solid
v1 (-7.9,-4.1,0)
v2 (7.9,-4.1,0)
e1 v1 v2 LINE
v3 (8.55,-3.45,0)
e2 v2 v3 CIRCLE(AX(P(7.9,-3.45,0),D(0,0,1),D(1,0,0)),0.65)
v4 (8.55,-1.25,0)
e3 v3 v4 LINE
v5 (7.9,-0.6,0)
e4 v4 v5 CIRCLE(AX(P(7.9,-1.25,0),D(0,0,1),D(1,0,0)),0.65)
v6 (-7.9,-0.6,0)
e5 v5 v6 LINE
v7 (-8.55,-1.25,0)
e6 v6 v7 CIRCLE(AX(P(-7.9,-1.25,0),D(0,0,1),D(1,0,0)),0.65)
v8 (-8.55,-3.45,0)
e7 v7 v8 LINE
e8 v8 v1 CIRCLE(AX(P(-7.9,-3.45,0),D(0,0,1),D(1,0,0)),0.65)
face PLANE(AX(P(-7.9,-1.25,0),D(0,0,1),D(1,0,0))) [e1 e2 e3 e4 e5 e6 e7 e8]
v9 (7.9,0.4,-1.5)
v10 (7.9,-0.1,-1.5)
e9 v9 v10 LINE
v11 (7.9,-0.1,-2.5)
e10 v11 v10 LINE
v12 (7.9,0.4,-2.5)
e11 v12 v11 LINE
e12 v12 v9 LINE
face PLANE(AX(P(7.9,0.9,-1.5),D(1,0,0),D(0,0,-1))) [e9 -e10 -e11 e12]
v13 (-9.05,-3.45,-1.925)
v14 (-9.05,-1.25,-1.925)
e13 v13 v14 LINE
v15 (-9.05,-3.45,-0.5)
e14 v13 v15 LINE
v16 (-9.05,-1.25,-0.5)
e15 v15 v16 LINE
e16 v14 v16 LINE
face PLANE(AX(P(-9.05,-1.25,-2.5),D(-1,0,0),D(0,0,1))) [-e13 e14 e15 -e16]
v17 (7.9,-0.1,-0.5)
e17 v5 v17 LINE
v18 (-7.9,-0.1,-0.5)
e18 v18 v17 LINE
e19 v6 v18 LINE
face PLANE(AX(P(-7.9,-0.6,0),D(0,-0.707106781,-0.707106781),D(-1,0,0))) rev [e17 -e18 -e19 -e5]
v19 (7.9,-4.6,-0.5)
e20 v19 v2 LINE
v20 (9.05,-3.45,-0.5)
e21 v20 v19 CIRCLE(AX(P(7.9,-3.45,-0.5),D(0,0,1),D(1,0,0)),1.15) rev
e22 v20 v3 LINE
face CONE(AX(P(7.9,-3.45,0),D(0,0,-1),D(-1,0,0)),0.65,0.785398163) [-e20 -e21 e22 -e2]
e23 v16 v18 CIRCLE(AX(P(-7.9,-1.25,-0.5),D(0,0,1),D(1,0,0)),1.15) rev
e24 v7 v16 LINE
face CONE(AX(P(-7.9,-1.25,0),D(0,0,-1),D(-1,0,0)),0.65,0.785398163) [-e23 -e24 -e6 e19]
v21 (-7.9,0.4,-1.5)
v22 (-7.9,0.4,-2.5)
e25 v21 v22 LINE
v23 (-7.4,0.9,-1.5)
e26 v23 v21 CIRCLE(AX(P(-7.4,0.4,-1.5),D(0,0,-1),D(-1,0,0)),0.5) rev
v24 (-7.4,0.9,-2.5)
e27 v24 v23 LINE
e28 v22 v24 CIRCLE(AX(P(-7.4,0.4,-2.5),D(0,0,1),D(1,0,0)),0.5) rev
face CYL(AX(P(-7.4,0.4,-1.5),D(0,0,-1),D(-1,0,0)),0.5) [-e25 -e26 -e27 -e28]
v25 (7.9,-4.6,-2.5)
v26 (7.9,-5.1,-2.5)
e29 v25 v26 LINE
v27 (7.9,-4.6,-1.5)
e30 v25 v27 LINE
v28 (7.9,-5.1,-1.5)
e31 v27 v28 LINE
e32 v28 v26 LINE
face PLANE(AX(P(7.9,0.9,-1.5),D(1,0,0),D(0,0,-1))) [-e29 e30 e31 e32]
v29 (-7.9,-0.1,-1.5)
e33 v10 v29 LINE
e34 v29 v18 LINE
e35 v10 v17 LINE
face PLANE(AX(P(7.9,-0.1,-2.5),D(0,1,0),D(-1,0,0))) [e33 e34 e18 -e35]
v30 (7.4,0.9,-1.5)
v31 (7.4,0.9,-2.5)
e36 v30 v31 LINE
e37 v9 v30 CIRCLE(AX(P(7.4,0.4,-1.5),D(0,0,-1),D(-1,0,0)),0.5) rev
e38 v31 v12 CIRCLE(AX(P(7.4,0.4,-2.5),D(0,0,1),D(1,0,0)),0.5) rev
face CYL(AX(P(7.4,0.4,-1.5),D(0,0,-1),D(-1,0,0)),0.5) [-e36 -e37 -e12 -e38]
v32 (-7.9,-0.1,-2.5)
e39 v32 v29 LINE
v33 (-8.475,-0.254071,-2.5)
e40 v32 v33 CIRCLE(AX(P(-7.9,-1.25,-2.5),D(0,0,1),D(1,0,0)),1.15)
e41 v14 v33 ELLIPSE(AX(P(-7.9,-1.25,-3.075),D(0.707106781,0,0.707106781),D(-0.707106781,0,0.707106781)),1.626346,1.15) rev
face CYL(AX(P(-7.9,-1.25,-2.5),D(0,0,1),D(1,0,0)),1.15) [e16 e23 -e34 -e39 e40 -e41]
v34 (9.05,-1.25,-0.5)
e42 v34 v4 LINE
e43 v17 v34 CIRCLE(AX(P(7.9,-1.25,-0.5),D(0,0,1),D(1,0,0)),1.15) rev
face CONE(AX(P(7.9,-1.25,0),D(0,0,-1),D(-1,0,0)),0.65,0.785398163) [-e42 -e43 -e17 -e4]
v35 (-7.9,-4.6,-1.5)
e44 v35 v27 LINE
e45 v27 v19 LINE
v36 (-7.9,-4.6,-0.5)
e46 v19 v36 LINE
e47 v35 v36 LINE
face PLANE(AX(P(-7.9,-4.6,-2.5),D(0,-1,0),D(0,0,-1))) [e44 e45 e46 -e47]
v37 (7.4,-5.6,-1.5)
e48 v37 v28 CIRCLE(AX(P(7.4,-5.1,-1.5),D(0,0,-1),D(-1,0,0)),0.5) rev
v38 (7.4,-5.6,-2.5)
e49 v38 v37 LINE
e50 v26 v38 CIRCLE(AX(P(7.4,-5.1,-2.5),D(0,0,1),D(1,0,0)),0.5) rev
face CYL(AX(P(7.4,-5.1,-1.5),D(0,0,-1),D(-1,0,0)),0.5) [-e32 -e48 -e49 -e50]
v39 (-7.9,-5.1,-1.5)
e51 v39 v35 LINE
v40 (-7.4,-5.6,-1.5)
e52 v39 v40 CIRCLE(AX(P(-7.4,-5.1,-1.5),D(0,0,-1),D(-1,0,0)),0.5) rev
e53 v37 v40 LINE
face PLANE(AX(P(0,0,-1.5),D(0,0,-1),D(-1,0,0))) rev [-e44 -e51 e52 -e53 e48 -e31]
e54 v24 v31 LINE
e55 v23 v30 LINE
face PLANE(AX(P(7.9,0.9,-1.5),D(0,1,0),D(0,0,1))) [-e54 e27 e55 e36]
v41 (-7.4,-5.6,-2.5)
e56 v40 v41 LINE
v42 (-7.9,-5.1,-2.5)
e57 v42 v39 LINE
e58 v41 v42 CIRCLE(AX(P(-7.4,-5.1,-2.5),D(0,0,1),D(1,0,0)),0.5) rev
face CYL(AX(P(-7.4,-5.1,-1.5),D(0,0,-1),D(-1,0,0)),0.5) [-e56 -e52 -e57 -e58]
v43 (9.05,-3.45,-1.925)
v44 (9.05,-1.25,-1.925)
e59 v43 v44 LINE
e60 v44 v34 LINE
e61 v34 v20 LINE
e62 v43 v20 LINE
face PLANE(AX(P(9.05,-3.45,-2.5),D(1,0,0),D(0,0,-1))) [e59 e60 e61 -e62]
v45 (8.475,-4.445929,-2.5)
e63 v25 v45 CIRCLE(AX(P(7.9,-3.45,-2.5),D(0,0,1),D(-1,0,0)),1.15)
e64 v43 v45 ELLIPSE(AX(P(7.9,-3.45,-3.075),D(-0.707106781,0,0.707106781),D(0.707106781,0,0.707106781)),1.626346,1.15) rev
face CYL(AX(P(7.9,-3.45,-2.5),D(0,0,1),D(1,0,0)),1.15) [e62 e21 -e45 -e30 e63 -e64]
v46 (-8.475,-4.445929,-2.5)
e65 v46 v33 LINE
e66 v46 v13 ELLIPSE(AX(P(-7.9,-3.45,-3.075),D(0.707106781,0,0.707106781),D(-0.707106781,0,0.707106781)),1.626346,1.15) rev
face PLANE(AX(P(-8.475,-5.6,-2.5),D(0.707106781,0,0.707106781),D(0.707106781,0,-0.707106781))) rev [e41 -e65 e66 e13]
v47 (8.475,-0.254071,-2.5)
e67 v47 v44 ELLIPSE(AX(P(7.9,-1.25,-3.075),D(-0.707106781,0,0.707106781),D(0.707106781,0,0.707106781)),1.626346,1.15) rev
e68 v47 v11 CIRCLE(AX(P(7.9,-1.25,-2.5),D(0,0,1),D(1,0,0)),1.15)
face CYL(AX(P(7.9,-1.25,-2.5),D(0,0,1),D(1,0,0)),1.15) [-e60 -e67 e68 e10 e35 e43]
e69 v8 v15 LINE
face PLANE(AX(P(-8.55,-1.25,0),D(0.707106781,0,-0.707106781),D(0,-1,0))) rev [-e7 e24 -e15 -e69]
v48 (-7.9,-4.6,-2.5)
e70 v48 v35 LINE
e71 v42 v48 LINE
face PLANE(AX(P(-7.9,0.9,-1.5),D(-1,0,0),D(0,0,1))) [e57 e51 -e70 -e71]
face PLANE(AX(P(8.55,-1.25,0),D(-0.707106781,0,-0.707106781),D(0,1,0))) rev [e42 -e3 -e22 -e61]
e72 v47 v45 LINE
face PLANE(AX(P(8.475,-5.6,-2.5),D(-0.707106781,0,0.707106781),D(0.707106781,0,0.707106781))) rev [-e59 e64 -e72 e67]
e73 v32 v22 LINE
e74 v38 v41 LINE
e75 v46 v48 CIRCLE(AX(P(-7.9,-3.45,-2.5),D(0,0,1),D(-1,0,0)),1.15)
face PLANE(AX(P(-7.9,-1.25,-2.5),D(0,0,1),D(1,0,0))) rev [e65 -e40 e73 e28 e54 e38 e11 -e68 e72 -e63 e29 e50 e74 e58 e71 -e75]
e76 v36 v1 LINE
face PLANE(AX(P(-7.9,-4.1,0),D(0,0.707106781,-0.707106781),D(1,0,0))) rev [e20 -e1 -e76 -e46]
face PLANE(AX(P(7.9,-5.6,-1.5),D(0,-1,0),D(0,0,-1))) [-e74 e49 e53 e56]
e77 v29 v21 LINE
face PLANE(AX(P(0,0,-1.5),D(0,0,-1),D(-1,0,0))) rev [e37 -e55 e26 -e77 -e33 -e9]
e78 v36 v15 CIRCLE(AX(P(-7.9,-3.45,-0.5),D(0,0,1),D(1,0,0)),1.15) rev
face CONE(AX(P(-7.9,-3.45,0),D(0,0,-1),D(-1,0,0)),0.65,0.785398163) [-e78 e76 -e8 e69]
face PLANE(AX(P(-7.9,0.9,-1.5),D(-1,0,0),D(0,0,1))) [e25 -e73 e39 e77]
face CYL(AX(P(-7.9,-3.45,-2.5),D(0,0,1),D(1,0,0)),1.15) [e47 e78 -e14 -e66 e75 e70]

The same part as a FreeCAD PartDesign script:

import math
import FreeCAD as App
import Part
import Sketcher

V = App.Vector
Q = App.Units.Quantity


def edges_at(feature, points):
    """Names of the edges that pass closest to the given points."""
    edges = feature.Shape.Edges
    near = lambda p: min(range(len(edges)), key=lambda i: edges[i].distToShape(Part.Vertex(*p))[0])
    return sorted({f"Edge{near(p) + 1}" for p in points})


def add_polygon(sketch, points):
    """Adds a closed chain of lines whose ends are joined by coincident constraints."""
    first, n = sketch.GeometryCount, len(points)
    for a, b in zip(points, points[1:] + points[:1]):
        sketch.addGeometry(Part.LineSegment(App.Vector(*a, 0), App.Vector(*b, 0)), False)
    for i in range(n):
        sketch.addConstraint(Sketcher.Constraint("Coincident", first + i, 2, first + (i + 1) % n, 1))

doc = App.newDocument("Part")
body = doc.addObject("PartDesign::Body", "Body")

# Sketch on XY plane
sketch1 = doc.addObject("Sketcher::SketchObject", "Sketch")
body.addObject(sketch1)
sketch1.AttachmentSupport = (doc.XY_Plane, [""])
sketch1.MapMode = "FlatFace"
sketch1.addGeometry(Part.LineSegment(V(-9.1, -1.2, 0), V(-9.1, -3.5, 0)), False)
sketch1.addGeometry(Part.ArcOfCircle(Part.Circle(V(-7.9, -3.4, 0), V(0, 0, 1), 1.2), math.radians(-180), math.radians(-90)), False)
sketch1.addGeometry(Part.LineSegment(V(-7.9, -4.6, 0), V(7.9, -4.6, 0)), False)
sketch1.addGeometry(Part.ArcOfCircle(Part.Circle(V(7.9, -3.4, 0), V(0, 0, 1), 1.2), math.radians(-90), math.radians(0)), False)
sketch1.addGeometry(Part.LineSegment(V(9.1, -3.5, 0), V(9.1, -1.2, 0)), False)
sketch1.addGeometry(Part.ArcOfCircle(Part.Circle(V(7.9, -1.3, 0), V(0, 0, 1), 1.2), math.radians(0), math.radians(90)), False)
sketch1.addGeometry(Part.LineSegment(V(7.9, -0.1, 0), V(-7.9, -0.1, 0)), False)
sketch1.addGeometry(Part.ArcOfCircle(Part.Circle(V(-7.9, -1.3, 0), V(0, 0, 1), 1.2), math.radians(90), math.radians(180)), False)
sketch1.addConstraint(Sketcher.Constraint("Tangent", 0, 2, 1, 1))
sketch1.addConstraint(Sketcher.Constraint("Tangent", 1, 2, 2, 1))
sketch1.addConstraint(Sketcher.Constraint("Tangent", 2, 2, 3, 1))
sketch1.addConstraint(Sketcher.Constraint("Tangent", 3, 2, 4, 1))
sketch1.addConstraint(Sketcher.Constraint("Tangent", 4, 2, 5, 1))
sketch1.addConstraint(Sketcher.Constraint("Tangent", 5, 2, 6, 1))
sketch1.addConstraint(Sketcher.Constraint("Tangent", 6, 2, 7, 1))
sketch1.addConstraint(Sketcher.Constraint("Tangent", 7, 2, 0, 1))
sketch1.addConstraint(Sketcher.Constraint("Vertical", 0))
sketch1.addConstraint(Sketcher.Constraint("Horizontal", 2))
sketch1.addConstraint(Sketcher.Constraint("Vertical", 4))
sketch1.addConstraint(Sketcher.Constraint("Horizontal", 6))
sketch1.addConstraint(Sketcher.Constraint("Equal", 1, 3))
sketch1.addConstraint(Sketcher.Constraint("Equal", 3, 5))
sketch1.addConstraint(Sketcher.Constraint("Equal", 5, 7))
sketch1.addConstraint(Sketcher.Constraint("Radius", 1, Q("1.15 mm")))
sketch1.addConstraint(Sketcher.Constraint("DistanceX", 2, 1, 2, 2, Q("15.8 mm")))
sketch1.addConstraint(Sketcher.Constraint("DistanceY", 0, 2, 0, 1, Q("2.2 mm")))
sketch1.addConstraint(Sketcher.Constraint("DistanceX", 1, 3, -1, 1, Q("7.9 mm")))
sketch1.addConstraint(Sketcher.Constraint("DistanceY", 1, 2, -1, 1, Q("4.6 mm")))
pad1 = doc.addObject("PartDesign::Pad", "Pad")
body.addObject(pad1)
pad1.Profile = sketch1
pad1.Length = 2.5
pad1.Reversed = True

# Sketch on XY plane
sketch2 = doc.addObject("Sketcher::SketchObject", "Sketch001")
body.addObject(sketch2)
sketch2.AttachmentSupport = (doc.XY_Plane, [""])
sketch2.MapMode = "FlatFace"
sketch2.AttachmentOffset = App.Placement(V(0, 0, -2.5), App.Rotation())
add_polygon(sketch2, [(8, 1), (8, -6), (-8, -6), (-8, 1)])  # lines 0-3
sketch2.addConstraint(Sketcher.Constraint("Vertical", 0))
sketch2.addConstraint(Sketcher.Constraint("Horizontal", 1))
sketch2.addConstraint(Sketcher.Constraint("Vertical", 2))
sketch2.addConstraint(Sketcher.Constraint("Horizontal", 3))
sketch2.addConstraint(Sketcher.Constraint("DistanceX", 1, 2, 1, 1, Q("15.8 mm")))
sketch2.addConstraint(Sketcher.Constraint("DistanceY", 0, 2, 0, 1, Q("6.5 mm")))
sketch2.addConstraint(Sketcher.Constraint("DistanceX", -1, 1, 0, 2, Q("7.9 mm")))
sketch2.addConstraint(Sketcher.Constraint("DistanceY", 0, 2, -1, 1, Q("5.6 mm")))
pad2 = doc.addObject("PartDesign::Pad", "Pad001")
body.addObject(pad2)
pad2.Profile = sketch2
pad2.Length = 1
doc.recompute()

fillet = doc.addObject("PartDesign::Fillet", "Fillet")
body.addObject(fillet)
fillet.Base = (pad2, edges_at(pad2, [
    (-7.9, 0.9, -2),
    (-7.9, -5.6, -2),
    (7.9, -5.6, -2),
    (7.9, 0.9, -2),
]))
fillet.Radius = 0.5
doc.recompute()

chamfer = doc.addObject("PartDesign::Chamfer", "Chamfer")
body.addObject(chamfer)
chamfer.Base = (fillet, edges_at(fillet, [
    (-9.05, -2.35, 0),
    (-8.713, -0.437, 0),
    (0, -0.1, 0),
    (8.713, -0.437, 0),
    (9.05, -2.35, 0),
    (8.713, -4.263, 0),
    (0, -4.6, 0),
    (-8.713, -4.263, 0),
]))
chamfer.Size = 0.5

# Sketch on XZ plane
sketch3 = doc.addObject("Sketcher::SketchObject", "Sketch002")
body.addObject(sketch3)
sketch3.AttachmentSupport = (doc.XZ_Plane, [""])
sketch3.MapMode = "FlatFace"
sketch3.AttachmentOffset = App.Placement(V(0, 0, -0.9), App.Rotation())
add_polygon(sketch3, [(8.5, -2.5), (9.1, -1.9), (9.1, -2.5)])  # lines 0-2
add_polygon(sketch3, [(-9.1, -2.5), (-9.1, -1.9), (-8.5, -2.5)])  # lines 3-5
sketch3.addConstraint(Sketcher.Constraint("Vertical", 1))
sketch3.addConstraint(Sketcher.Constraint("Horizontal", 2))
sketch3.addConstraint(Sketcher.Constraint("Vertical", 3))
sketch3.addConstraint(Sketcher.Constraint("Horizontal", 5))
sketch3.addConstraint(Sketcher.Constraint("Symmetric", 0, 2, 3, 2, -2))
sketch3.addConstraint(Sketcher.Constraint("Symmetric", 2, 2, 4, 2, -2))
sketch3.addConstraint(Sketcher.Constraint("Perpendicular", 0, 4))
sketch3.addConstraint(Sketcher.Constraint("DistanceY", 1, 2, -1, 1, Q("2.5 mm")))
sketch3.addConstraint(Sketcher.Constraint("DistanceX", 3, 2, 0, 2, Q("18.1 mm")))
sketch3.addConstraint(Sketcher.Constraint("DistanceX", 2, 2, 2, 1, Q("0.575 mm")))
pocket1 = doc.addObject("PartDesign::Pocket", "Pocket")
body.addObject(pocket1)
pocket1.Profile = sketch3
pocket1.Type = "ThroughAll"
pocket1.Reversed = True

doc.recompute()
